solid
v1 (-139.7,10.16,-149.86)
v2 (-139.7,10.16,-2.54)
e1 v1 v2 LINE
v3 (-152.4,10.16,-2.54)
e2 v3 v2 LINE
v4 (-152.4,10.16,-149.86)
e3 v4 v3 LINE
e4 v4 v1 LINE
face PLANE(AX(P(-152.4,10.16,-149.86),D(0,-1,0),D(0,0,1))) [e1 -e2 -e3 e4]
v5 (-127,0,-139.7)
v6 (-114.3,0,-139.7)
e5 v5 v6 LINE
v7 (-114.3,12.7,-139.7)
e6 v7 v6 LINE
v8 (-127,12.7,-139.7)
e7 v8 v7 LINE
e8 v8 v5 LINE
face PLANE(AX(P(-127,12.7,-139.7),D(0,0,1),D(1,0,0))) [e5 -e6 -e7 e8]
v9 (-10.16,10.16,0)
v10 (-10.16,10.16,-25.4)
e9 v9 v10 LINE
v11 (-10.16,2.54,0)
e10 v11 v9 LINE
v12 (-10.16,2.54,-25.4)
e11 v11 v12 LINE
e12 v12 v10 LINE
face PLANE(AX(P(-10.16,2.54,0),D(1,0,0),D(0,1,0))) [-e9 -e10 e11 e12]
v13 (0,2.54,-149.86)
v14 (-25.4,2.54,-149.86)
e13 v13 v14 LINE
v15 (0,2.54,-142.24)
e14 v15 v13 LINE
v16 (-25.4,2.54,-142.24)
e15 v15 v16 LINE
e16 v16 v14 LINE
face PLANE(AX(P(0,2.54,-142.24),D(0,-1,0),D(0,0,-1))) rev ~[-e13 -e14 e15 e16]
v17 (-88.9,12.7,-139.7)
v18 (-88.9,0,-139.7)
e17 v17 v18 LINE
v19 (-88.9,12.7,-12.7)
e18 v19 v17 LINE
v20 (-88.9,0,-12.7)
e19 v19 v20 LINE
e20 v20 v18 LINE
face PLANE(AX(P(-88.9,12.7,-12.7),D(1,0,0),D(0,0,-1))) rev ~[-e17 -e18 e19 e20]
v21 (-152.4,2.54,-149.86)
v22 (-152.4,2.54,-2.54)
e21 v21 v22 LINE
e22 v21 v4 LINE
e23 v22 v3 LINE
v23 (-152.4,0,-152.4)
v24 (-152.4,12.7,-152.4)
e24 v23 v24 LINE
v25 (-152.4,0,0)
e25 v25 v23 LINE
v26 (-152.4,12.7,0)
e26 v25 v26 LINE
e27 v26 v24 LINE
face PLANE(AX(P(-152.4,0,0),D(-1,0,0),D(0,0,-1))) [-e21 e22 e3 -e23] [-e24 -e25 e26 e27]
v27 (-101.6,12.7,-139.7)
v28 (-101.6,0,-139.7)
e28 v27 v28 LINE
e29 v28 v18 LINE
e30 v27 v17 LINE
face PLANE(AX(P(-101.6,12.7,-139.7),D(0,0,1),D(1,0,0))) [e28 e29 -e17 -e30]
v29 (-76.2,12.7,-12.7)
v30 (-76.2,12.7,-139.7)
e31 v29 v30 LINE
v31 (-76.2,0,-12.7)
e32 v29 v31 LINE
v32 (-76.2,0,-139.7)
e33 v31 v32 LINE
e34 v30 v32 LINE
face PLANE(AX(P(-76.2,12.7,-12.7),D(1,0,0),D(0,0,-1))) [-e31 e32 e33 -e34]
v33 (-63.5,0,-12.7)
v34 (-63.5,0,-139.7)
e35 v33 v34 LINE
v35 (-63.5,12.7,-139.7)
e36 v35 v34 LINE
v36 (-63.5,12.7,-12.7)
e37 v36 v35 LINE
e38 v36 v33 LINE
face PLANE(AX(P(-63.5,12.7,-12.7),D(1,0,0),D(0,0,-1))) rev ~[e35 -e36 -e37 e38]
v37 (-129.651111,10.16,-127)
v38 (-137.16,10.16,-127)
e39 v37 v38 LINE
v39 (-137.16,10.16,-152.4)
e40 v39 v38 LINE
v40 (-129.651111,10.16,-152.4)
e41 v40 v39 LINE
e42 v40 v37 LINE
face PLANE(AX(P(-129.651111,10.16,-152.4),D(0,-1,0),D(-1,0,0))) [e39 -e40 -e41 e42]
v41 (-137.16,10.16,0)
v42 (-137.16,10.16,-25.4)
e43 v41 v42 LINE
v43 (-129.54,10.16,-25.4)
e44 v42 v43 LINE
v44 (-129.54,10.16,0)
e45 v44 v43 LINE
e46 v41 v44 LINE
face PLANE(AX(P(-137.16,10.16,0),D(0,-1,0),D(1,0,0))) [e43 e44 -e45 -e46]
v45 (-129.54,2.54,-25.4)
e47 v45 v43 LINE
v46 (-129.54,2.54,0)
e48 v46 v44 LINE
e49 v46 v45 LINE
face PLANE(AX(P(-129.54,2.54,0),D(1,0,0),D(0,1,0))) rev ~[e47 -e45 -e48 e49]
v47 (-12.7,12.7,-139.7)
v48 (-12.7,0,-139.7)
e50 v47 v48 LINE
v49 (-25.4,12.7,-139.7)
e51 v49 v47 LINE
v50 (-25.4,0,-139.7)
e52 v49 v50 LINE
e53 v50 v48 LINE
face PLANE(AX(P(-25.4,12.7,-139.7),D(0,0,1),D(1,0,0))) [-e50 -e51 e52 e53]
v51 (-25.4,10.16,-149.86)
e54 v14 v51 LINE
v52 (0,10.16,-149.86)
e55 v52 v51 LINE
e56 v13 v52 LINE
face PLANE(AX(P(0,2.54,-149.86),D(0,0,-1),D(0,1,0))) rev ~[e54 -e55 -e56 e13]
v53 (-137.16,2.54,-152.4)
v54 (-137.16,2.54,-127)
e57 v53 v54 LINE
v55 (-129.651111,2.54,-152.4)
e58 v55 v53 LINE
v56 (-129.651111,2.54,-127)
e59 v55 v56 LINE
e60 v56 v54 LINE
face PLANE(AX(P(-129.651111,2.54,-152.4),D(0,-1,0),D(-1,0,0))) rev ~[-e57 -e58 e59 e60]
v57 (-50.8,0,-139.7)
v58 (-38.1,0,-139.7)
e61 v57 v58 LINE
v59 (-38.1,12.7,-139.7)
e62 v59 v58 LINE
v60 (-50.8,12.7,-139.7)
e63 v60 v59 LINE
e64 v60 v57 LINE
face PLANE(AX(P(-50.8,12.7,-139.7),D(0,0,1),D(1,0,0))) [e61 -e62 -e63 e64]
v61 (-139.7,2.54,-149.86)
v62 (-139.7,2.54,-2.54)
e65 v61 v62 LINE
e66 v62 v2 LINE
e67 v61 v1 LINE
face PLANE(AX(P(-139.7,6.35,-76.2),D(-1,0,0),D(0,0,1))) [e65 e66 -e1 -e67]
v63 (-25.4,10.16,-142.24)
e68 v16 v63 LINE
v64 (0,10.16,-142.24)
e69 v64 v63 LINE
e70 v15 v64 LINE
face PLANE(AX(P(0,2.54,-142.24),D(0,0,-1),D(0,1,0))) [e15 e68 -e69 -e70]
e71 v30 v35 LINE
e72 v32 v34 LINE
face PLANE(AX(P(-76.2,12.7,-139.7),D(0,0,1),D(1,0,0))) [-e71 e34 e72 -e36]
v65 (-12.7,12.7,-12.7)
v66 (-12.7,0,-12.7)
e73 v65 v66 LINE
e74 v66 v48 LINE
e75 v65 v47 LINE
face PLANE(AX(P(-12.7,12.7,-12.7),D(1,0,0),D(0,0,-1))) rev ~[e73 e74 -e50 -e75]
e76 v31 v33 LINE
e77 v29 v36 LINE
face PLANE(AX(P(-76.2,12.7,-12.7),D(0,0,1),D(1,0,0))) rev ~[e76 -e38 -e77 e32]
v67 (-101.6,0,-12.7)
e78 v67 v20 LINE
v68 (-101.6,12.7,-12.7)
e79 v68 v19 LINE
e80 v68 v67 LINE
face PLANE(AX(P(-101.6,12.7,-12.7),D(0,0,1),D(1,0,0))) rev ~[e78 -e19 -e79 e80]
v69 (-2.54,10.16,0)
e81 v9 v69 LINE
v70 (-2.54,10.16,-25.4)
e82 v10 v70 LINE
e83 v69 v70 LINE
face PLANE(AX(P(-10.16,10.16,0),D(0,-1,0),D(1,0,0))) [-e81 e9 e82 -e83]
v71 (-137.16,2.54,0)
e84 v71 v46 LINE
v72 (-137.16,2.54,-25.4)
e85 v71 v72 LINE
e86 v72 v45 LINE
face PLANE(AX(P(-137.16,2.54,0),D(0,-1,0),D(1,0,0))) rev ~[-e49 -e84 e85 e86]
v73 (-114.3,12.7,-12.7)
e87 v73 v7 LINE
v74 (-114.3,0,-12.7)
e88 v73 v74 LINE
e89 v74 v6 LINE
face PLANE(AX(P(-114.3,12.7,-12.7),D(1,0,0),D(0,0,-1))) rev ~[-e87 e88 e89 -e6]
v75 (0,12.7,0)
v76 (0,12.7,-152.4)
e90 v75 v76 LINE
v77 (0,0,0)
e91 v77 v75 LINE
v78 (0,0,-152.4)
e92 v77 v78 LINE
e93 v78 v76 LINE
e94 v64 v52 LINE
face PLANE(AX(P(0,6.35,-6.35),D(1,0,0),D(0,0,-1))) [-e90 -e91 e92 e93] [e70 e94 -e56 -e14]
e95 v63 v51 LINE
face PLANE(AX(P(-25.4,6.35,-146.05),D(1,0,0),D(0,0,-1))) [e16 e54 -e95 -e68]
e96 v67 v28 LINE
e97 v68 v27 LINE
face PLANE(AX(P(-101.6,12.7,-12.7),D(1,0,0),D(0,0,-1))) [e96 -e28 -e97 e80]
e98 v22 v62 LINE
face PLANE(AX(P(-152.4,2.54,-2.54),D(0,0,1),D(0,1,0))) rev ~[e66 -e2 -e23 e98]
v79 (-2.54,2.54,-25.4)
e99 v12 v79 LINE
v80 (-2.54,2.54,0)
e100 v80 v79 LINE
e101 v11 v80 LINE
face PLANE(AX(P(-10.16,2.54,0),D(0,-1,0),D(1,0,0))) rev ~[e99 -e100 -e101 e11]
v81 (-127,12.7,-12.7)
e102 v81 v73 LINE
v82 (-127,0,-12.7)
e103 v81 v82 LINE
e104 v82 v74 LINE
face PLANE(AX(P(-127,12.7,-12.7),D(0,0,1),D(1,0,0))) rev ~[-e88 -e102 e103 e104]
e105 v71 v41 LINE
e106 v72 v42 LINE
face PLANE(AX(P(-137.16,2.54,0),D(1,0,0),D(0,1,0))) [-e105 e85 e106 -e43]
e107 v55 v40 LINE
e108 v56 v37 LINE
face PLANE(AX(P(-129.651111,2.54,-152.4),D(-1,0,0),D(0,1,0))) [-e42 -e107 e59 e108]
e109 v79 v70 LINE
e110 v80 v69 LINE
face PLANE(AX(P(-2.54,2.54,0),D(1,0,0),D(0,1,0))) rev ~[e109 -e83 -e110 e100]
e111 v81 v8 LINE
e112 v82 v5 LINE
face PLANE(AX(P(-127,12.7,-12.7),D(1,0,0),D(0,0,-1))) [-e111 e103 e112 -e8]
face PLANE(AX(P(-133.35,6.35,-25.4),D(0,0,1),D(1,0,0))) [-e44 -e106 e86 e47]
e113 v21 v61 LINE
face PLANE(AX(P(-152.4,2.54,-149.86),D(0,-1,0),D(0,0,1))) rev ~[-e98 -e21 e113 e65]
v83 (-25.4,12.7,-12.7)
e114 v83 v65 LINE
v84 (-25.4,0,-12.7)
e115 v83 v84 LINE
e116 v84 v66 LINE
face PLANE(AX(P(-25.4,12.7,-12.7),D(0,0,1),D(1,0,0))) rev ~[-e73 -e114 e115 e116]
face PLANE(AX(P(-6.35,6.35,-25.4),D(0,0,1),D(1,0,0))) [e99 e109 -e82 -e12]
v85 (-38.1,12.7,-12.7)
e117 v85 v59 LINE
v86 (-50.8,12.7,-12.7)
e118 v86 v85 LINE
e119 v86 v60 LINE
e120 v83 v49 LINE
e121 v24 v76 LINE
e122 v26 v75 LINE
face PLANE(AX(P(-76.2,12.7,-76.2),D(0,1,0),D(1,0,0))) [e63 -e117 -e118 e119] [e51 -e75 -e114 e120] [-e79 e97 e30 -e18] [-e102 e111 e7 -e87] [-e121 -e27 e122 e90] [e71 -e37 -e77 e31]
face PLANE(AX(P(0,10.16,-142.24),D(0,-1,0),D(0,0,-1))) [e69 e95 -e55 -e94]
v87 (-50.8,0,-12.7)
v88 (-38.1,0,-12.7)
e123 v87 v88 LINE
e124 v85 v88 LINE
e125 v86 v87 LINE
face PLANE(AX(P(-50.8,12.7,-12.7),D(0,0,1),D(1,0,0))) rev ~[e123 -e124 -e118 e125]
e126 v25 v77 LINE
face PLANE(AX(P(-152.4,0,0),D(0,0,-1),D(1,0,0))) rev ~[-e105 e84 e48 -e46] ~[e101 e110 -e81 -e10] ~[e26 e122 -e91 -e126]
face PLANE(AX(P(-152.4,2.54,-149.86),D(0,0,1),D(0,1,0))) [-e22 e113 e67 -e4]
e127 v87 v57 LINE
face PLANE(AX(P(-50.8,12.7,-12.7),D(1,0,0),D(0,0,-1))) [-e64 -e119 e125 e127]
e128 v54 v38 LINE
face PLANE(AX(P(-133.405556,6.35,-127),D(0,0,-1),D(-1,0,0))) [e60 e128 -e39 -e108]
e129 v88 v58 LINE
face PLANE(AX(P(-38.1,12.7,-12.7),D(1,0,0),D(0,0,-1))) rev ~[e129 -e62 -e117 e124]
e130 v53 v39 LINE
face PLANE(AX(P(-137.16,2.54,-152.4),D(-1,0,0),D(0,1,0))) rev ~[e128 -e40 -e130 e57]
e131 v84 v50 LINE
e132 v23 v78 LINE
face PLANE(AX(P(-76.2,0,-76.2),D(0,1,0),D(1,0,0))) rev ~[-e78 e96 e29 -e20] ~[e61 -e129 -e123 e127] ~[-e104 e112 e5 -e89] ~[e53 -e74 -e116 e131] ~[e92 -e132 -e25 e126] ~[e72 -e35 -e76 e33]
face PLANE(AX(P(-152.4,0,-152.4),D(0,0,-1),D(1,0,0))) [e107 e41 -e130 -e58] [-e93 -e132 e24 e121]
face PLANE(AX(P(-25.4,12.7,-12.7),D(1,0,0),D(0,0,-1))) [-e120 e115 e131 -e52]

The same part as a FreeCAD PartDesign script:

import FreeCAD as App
import Part
import Sketcher
from FreeCAD import Vector
Q = App.Units.Quantity


def add_polygon(sketch, points):
    """Adds a closed chain of lines whose ends are joined by coincident constraints."""
    first, n = sketch.GeometryCount, len(points)
    for a, b in zip(points, points[1:] + points[:1]):
        sketch.addGeometry(Part.LineSegment(App.Vector(*a, 0), App.Vector(*b, 0)), False)
    for i in range(n):
        sketch.addConstraint(Sketcher.Constraint("Coincident", first + i, 2, first + (i + 1) % n, 1))

doc = App.newDocument("Part")
params = doc.addObject("Spreadsheet::Sheet", "Params")
for row, (alias, value) in enumerate([
    ("sketch1_width", "6 in"),
    ("pad1_length", "0.5 in"),
    ("sketch2_width", "0.3 in"),
    ("sketch2_height", "5.8 in"),
    ("pocket1_length", "0.5 in"),
    ("sketch3_height", "5 in"),
    ("sketch3_width", "0.5 in"),
    ("pocket2_length", "0.5 in"),
    ("sketch4_width", "0.3 in"),
    ("pocket3_length", "1 in"),
    ("sketch5_width", "0.3 in"),
    ("pocket4_length", "1 in"),
    ("sketch6_height", "0.3 in"),
    ("pocket5_length", "1 in"),
    ("sketch7_width", "0.3 in"),
    ("pad2_length", "1 in"),
    ("sketch8_width", "0.3 in"),
    ("pocket6_length", "1 in"),
], start=1):
    params.set(f"A{row}", alias)
    params.set(f"B{row}", "=" + value)
    params.setAlias(f"B{row}", alias)

body = doc.addObject("PartDesign::Body", "Body")

sketch1 = doc.addObject("Sketcher::SketchObject", "Sketch")
body.addObject(sketch1)
sketch1.AttachmentSupport = (doc.XZ_Plane, [""])
sketch1.MapMode = "FlatFace"
add_polygon(sketch1, [(-152.4, -152.4), (-152.4, 0), (0, 0), (0, -152.4)])
sketch1.addConstraint([
    Sketcher.Constraint("Vertical", 0),
    Sketcher.Constraint("Horizontal", 1),
    Sketcher.Constraint("Vertical", 2),
    Sketcher.Constraint("Horizontal", 3),
    Sketcher.Constraint("Coincident", 1, 2, -1, 1),
    Sketcher.Constraint("Equal", 3, 0),
    Sketcher.Constraint("DistanceX", 1, 1, 1, 2, Q("6 in")),
])
sketch1.setExpression("Constraints[10]", "Params.sketch1_width")
pad1 = doc.addObject("PartDesign::Pad", "Pad")
body.addObject(pad1)
pad1.Profile = sketch1
pad1.setExpression("Length", "Params.pad1_length")
pad1.Reversed = True

sketch2 = doc.addObject("Sketcher::SketchObject", "Sketch001")
body.addObject(sketch2)
sketch2.AttachmentSupport = (doc.YZ_Plane, [""])
sketch2.MapMode = "FlatFace"
sketch2.AttachmentOffset = App.Placement(Vector(0, 0, -6 * 25.4), App.Rotation())
add_polygon(sketch2, [(10.16, -149.86), (2.54, -149.86), (2.54, -2.54), (10.16, -2.54)])
sketch2.addConstraint([
    Sketcher.Constraint("Horizontal", 0),
    Sketcher.Constraint("Vertical", 1),
    Sketcher.Constraint("Horizontal", 2),
    Sketcher.Constraint("Vertical", 3),
    Sketcher.Constraint("DistanceX", 0, 2, 0, 1, Q("0.3 in")),
    Sketcher.Constraint("DistanceY", 1, 1, 1, 2, Q("5.8 in")),
    Sketcher.Constraint("DistanceX", -1, 1, 0, 2, Q("0.1 in")),
    Sketcher.Constraint("DistanceY", 0, 2, -1, 1, Q("5.9 in")),
])
sketch2.setExpression("Constraints[8]", "Params.sketch2_width")
sketch2.setExpression("Constraints[9]", "Params.sketch2_height")
pocket1 = doc.addObject("PartDesign::Pocket", "Pocket")
body.addObject(pocket1)
pocket1.Profile = sketch2
pocket1.setExpression("Length", "Params.pocket1_length")
pocket1.Reversed = True

sketch3 = doc.addObject("Sketcher::SketchObject", "Sketch002")
body.addObject(sketch3)
sketch3.AttachmentSupport = (doc.XZ_Plane, [""])
sketch3.MapMode = "FlatFace"
sketch3.AttachmentOffset = App.Placement(Vector(0, 0, -0.5 * 25.4), App.Rotation())
add_polygon(sketch3, [(-127, -139.7), (-127, -12.7), (-114.3, -12.7), (-114.3, -139.7)])
add_polygon(sketch3, [(-101.6, -139.7), (-101.6, -12.7), (-88.9, -12.7), (-88.9, -139.7)])
add_polygon(sketch3, [(-76.2, -139.7), (-76.2, -12.7), (-63.5, -12.7), (-63.5, -139.7)])
add_polygon(sketch3, [(-50.8, -139.7), (-50.8, -12.7), (-38.1, -12.7), (-38.1, -139.7)])
add_polygon(sketch3, [(-25.4, -139.7), (-25.4, -12.7), (-12.7, -12.7), (-12.7, -139.7)])
sketch3.addConstraint([
    Sketcher.Constraint("Vertical", 0),
    Sketcher.Constraint("Horizontal", 1),
    Sketcher.Constraint("Vertical", 2),
    Sketcher.Constraint("Horizontal", 3),
    Sketcher.Constraint("Vertical", 4),
    Sketcher.Constraint("Horizontal", 5),
    Sketcher.Constraint("Vertical", 6),
    Sketcher.Constraint("Horizontal", 7),
    Sketcher.Constraint("Vertical", 8),
    Sketcher.Constraint("Horizontal", 9),
    Sketcher.Constraint("Vertical", 10),
    Sketcher.Constraint("Horizontal", 11),
    Sketcher.Constraint("Vertical", 12),
    Sketcher.Constraint("Horizontal", 13),
    Sketcher.Constraint("Vertical", 14),
    Sketcher.Constraint("Horizontal", 15),
    Sketcher.Constraint("Vertical", 16),
    Sketcher.Constraint("Horizontal", 17),
    Sketcher.Constraint("Vertical", 18),
    Sketcher.Constraint("Horizontal", 19),
    Sketcher.Constraint("Horizontal", 1, 2, 4, 2),
    Sketcher.Constraint("Horizontal", 3, 2, 6, 2),
    Sketcher.Constraint("Horizontal", 5, 2, 8, 2),
    Sketcher.Constraint("Horizontal", 7, 2, 10, 2),
    Sketcher.Constraint("Horizontal", 9, 2, 12, 2),
    Sketcher.Constraint("Horizontal", 11, 2, 14, 2),
    Sketcher.Constraint("Horizontal", 13, 2, 16, 2),
    Sketcher.Constraint("Horizontal", 15, 2, 18, 2),
    Sketcher.Constraint("Equal", 3, 5),
    Sketcher.Constraint("Equal", 7, 9),
    Sketcher.Constraint("Equal", 11, 13),
    Sketcher.Constraint("Equal", 15, 17),
    Sketcher.Constraint("DistanceY", 0, 1, 0, 2, Q("5 in")),
    Sketcher.Constraint("DistanceX", 1, 1, 1, 2, Q("0.5 in")),
    Sketcher.Constraint("DistanceX", 0, 2, -1, 1, Q("5 in")),
    Sketcher.Constraint("DistanceX", 4, 2, -1, 1, Q("4 in")),
    Sketcher.Constraint("DistanceX", 8, 2, -1, 1, Q("3 in")),
    Sketcher.Constraint("DistanceX", 12, 2, -1, 1, Q("2 in")),
    Sketcher.Constraint("DistanceX", 16, 2, -1, 1, Q("1 in")),
    Sketcher.Constraint("DistanceY", 0, 2, -1, 1, Q("0.5 in")),
])
sketch3.setExpression("Constraints[52]", "Params.sketch3_height")
sketch3.setExpression("Constraints[53]", "Params.sketch3_width")
pocket2 = doc.addObject("PartDesign::Pocket", "Pocket001")
body.addObject(pocket2)
pocket2.Profile = sketch3
pocket2.setExpression("Length", "Params.pocket2_length")
pocket2.Reversed = True

sketch4 = doc.addObject("Sketcher::SketchObject", "Sketch003")
body.addObject(sketch4)
sketch4.AttachmentSupport = (doc.YZ_Plane, [""])
sketch4.MapMode = "FlatFace"
add_polygon(sketch4, [(10.16, -142.24), (2.54, -142.24), (2.54, -149.86), (10.16, -149.86)])
add_polygon(sketch4, [(10.16, -2.54), (2.54, -2.54), (2.54, -10.16), (10.16, -10.16)])
sketch4.addConstraint([
    Sketcher.Constraint("Horizontal", 0),
    Sketcher.Constraint("Vertical", 1),
    Sketcher.Constraint("Horizontal", 2),
    Sketcher.Constraint("Vertical", 3),
    Sketcher.Constraint("Horizontal", 4),
    Sketcher.Constraint("Vertical", 5),
    Sketcher.Constraint("Horizontal", 6),
    Sketcher.Constraint("Vertical", 7),
    Sketcher.Constraint("Vertical", 1, 2, 4, 2),
    Sketcher.Constraint("Vertical", 3, 2, 6, 2),
    Sketcher.Constraint("Equal", 6, 1),
    Sketcher.Constraint("Equal", 3, 5),
    Sketcher.Constraint("DistanceX", 0, 2, 0, 1, Q("0.3 in")),
    Sketcher.Constraint("DistanceX", -1, 1, 0, 2, Q("0.1 in")),
    Sketcher.Constraint("DistanceY", 0, 2, -1, 1, Q("5.6 in")),
    Sketcher.Constraint("DistanceY", 4, 2, -1, 1, Q("0.1 in")),
])
sketch4.setExpression("Constraints[20]", "Params.sketch4_width")
pocket3 = doc.addObject("PartDesign::Pocket", "Pocket002")
body.addObject(pocket3)
pocket3.Profile = sketch4
pocket3.setExpression("Length", "Params.pocket3_length")

sketch5 = doc.addObject("Sketcher::SketchObject", "Sketch004")
body.addObject(sketch5)
sketch5.AttachmentSupport = (doc.XY_Plane, [""])
sketch5.MapMode = "FlatFace"
add_polygon(sketch5, [(-137.16, 10.16), (-137.16, 2.54), (-129.54, 2.54), (-129.54, 10.16)])
sketch5.addConstraint([
    Sketcher.Constraint("Vertical", 0),
    Sketcher.Constraint("Horizontal", 1),
    Sketcher.Constraint("Vertical", 2),
    Sketcher.Constraint("Horizontal", 3),
    Sketcher.Constraint("Equal", 3, 0),
    Sketcher.Constraint("DistanceX", 1, 1, 1, 2, Q("0.3 in")),
    Sketcher.Constraint("DistanceX", 0, 2, -1, 1, Q("5.4 in")),
    Sketcher.Constraint("DistanceY", -1, 1, 0, 2, Q("0.1 in")),
])
sketch5.setExpression("Constraints[9]", "Params.sketch5_width")
pocket4 = doc.addObject("PartDesign::Pocket", "Pocket003")
body.addObject(pocket4)
pocket4.Profile = sketch5
pocket4.setExpression("Length", "Params.pocket4_length")

sketch6 = doc.addObject("Sketcher::SketchObject", "Sketch005")
body.addObject(sketch6)
sketch6.AttachmentSupport = (doc.XY_Plane, [""])
sketch6.MapMode = "FlatFace"
sketch6.AttachmentOffset = App.Placement(Vector(0, 0, -6 * 25.4), App.Rotation())
add_polygon(sketch6, [(-129.651111, 10.16), (-129.651111, 2.54), (-137.16, 2.54), (-137.16, 10.16)])
sketch6.addConstraint([
    Sketcher.Constraint("Vertical", 0),
    Sketcher.Constraint("Horizontal", 1),
    Sketcher.Constraint("Vertical", 2),
    Sketcher.Constraint("Horizontal", 3),
    Sketcher.Constraint("DistanceY", 0, 2, 0, 1, Q("0.3 in")),
    Sketcher.Constraint("DistanceY", -1, 1, 0, 2, Q("0.1 in")),
    Sketcher.Constraint("DistanceX", 1, 2, -1, 1, Q("5.4 in")),
    Sketcher.Constraint("DistanceX", 1, 2, 1, 1, 7.508889),
])
sketch6.setExpression("Constraints[8]", "Params.sketch6_height")
pocket5 = doc.addObject("PartDesign::Pocket", "Pocket004")
body.addObject(pocket5)
pocket5.Profile = sketch6
pocket5.setExpression("Length", "Params.pocket5_length")
pocket5.Reversed = True

sketch7 = doc.addObject("Sketcher::SketchObject", "Sketch006")
body.addObject(sketch7)
sketch7.AttachmentSupport = (doc.YZ_Plane, [""])
sketch7.MapMode = "FlatFace"
sketch7.AttachmentOffset = App.Placement(Vector(0, 0, -1 * 25.4), App.Rotation())
add_polygon(sketch7, [(10.16, -2.54), (2.54, -2.54), (2.54, -10.16), (10.16, -10.16)])
sketch7.addConstraint([
    Sketcher.Constraint("Horizontal", 0),
    Sketcher.Constraint("Vertical", 1),
    Sketcher.Constraint("Horizontal", 2),
    Sketcher.Constraint("Vertical", 3),
    Sketcher.Constraint("Equal", 2, 1),
    Sketcher.Constraint("DistanceX", 0, 2, 0, 1, Q("0.3 in")),
    Sketcher.Constraint("DistanceX", -1, 1, 0, 2, Q("0.1 in")),
    Sketcher.Constraint("DistanceY", 0, 2, -1, 1, Q("0.1 in")),
])
sketch7.setExpression("Constraints[9]", "Params.sketch7_width")
pad2 = doc.addObject("PartDesign::Pad", "Pad001")
body.addObject(pad2)
pad2.Profile = sketch7
pad2.setExpression("Length", "Params.pad2_length")

sketch8 = doc.addObject("Sketcher::SketchObject", "Sketch007")
body.addObject(sketch8)
sketch8.AttachmentSupport = (doc.XY_Plane, [""])
sketch8.MapMode = "FlatFace"
add_polygon(sketch8, [(-10.16, 10.16), (-10.16, 2.54), (-2.54, 2.54), (-2.54, 10.16)])
sketch8.addConstraint([
    Sketcher.Constraint("Vertical", 0),
    Sketcher.Constraint("Horizontal", 1),
    Sketcher.Constraint("Vertical", 2),
    Sketcher.Constraint("Horizontal", 3),
    Sketcher.Constraint("Equal", 3, 0),
    Sketcher.Constraint("DistanceX", 1, 1, 1, 2, Q("0.3 in")),
    Sketcher.Constraint("DistanceX", 0, 2, -1, 1, Q("0.4 in")),
    Sketcher.Constraint("DistanceY", -1, 1, 0, 2, Q("0.1 in")),
])
sketch8.setExpression("Constraints[9]", "Params.sketch8_width")
pocket6 = doc.addObject("PartDesign::Pocket", "Pocket005")
body.addObject(pocket6)
pocket6.Profile = sketch8
pocket6.setExpression("Length", "Params.pocket6_length")

doc.recompute()
